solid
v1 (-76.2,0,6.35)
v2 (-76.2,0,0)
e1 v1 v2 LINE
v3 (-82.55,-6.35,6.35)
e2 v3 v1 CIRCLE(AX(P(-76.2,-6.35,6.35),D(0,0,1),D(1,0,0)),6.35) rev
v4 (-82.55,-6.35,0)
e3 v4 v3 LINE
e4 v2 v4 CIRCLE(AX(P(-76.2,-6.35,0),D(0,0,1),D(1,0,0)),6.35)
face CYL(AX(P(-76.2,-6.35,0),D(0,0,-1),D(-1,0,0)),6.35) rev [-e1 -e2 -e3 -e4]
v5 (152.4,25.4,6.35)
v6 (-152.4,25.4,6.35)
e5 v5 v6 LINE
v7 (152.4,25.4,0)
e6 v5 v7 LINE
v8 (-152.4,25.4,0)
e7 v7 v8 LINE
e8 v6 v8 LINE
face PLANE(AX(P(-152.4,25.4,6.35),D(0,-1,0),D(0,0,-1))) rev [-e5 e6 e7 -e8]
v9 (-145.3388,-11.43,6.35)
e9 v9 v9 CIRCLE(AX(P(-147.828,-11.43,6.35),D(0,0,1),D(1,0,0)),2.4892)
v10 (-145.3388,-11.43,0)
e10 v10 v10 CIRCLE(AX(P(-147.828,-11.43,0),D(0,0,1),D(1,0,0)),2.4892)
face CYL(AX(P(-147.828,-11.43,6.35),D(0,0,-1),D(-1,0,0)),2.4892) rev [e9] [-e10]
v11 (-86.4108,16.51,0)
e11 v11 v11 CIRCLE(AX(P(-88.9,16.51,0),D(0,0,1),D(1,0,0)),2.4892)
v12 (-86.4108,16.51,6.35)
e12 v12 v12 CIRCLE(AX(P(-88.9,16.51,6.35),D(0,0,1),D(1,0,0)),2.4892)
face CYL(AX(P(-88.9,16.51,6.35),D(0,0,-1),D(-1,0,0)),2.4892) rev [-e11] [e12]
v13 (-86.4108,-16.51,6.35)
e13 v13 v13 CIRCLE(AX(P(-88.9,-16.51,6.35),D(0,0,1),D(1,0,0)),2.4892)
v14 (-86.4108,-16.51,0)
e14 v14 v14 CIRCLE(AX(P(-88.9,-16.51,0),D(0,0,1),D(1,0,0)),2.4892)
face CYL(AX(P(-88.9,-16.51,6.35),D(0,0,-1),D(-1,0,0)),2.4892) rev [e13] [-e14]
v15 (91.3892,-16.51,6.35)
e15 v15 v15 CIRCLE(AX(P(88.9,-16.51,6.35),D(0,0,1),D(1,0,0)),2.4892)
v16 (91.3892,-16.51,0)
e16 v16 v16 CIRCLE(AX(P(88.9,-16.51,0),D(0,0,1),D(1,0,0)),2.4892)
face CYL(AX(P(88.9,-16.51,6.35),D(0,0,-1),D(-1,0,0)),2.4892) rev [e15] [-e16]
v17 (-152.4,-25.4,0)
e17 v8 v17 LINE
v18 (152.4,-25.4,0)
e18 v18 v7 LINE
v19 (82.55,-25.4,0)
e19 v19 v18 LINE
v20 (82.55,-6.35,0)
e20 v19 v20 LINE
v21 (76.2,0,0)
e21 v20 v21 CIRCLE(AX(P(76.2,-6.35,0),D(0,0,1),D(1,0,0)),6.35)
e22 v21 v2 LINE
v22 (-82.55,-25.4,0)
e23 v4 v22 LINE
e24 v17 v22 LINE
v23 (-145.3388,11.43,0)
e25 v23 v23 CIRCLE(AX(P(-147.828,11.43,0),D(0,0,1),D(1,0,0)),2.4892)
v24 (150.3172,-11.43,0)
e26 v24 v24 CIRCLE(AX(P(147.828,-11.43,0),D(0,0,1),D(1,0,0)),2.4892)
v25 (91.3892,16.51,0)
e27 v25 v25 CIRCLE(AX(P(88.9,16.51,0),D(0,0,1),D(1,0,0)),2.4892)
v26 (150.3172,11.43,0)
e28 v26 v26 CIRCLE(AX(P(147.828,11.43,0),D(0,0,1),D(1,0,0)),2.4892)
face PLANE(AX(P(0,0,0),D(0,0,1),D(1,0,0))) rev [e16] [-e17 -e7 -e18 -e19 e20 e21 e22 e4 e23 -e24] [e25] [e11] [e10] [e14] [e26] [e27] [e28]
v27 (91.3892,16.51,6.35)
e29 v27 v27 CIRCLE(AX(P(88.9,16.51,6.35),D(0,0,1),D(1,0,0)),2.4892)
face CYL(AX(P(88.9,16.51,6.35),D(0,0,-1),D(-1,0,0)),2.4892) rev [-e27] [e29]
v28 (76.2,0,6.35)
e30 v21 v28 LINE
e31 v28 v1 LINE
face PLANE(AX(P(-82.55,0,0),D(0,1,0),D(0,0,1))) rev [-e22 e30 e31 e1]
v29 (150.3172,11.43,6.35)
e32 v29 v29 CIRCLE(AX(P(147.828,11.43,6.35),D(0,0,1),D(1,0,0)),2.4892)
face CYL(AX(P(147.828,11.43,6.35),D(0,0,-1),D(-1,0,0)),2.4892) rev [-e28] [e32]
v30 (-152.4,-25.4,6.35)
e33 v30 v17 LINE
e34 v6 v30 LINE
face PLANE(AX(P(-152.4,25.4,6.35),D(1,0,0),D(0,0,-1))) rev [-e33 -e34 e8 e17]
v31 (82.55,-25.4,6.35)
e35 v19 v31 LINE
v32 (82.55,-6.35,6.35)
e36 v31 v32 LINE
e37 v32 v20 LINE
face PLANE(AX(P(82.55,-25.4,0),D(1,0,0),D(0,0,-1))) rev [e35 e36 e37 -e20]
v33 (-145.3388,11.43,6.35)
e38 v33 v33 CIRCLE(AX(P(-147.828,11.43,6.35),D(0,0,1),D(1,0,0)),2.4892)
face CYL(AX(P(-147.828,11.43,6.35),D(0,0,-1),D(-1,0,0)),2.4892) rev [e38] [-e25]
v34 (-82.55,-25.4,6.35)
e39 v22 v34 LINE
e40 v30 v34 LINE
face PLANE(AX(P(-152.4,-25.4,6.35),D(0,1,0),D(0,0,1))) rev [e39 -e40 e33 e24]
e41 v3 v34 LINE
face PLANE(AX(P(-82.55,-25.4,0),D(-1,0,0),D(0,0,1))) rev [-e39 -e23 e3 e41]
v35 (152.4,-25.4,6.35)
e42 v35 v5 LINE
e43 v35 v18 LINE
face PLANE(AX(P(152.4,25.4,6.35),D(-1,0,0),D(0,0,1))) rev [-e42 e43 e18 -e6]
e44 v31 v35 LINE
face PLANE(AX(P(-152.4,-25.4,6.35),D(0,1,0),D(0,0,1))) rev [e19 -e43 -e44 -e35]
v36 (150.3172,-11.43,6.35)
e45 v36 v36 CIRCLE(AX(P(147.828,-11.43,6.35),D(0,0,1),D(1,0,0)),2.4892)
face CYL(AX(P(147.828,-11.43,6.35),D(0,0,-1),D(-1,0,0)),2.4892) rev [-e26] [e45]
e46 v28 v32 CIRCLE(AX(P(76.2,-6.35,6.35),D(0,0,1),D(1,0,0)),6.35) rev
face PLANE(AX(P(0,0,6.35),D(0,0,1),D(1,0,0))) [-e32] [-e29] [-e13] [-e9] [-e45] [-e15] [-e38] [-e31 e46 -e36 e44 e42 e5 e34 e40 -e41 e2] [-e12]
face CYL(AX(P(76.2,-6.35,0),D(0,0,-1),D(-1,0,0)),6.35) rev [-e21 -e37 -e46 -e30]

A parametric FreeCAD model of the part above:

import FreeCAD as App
import Part
import Sketcher
Q = App.Units.Quantity


def edges_at(feature, points):
    """Names of the edges that pass closest to the given points."""
    edges = feature.Shape.Edges
    near = lambda p: min(range(len(edges)), key=lambda i: edges[i].distToShape(Part.Vertex(*p))[0])
    return sorted({f"Edge{near(p) + 1}" for p in points})


def add_polygon(sketch, points):
    """Adds a closed chain of lines whose ends are joined by coincident constraints."""
    first, n = sketch.GeometryCount, len(points)
    for a, b in zip(points, points[1:] + points[:1]):
        sketch.addGeometry(Part.LineSegment(App.Vector(*a, 0), App.Vector(*b, 0)), False)
    for i in range(n):
        sketch.addConstraint(Sketcher.Constraint("Coincident", first + i, 2, first + (i + 1) % n, 1))

doc = App.newDocument("Part")
body = doc.addObject("PartDesign::Body", "Body")

# Sketch on XY plane
sketch1 = doc.addObject("Sketcher::SketchObject", "Sketch")
body.addObject(sketch1)
sketch1.AttachmentSupport = (doc.XY_Plane, [""])
sketch1.MapMode = "FlatFace"
add_polygon(sketch1, [(-152.4, 25.4), (-152.4, -25.4), (152.4, -25.4), (152.4, 25.4)])  # lines 0-3
sketch1.addGeometry(Part.Circle(App.Vector(-88.9, -16.5, 0), App.Vector(0, 0, 1), 2.5), False)  # 4
sketch1.addGeometry(Part.Circle(App.Vector(-147.8, -11.4, 0), App.Vector(0, 0, 1), 2.5), False)  # 5
sketch1.addGeometry(Part.Circle(App.Vector(88.9, -16.5, 0), App.Vector(0, 0, 1), 2.5), False)  # 6
sketch1.addGeometry(Part.Circle(App.Vector(147.8, -11.4, 0), App.Vector(0, 0, 1), 2.5), False)  # 7
sketch1.addGeometry(Part.Circle(App.Vector(-147.8, 11.4, 0), App.Vector(0, 0, 1), 2.5), False)  # 8
sketch1.addGeometry(Part.Circle(App.Vector(-88.9, 16.5, 0), App.Vector(0, 0, 1), 2.5), False)  # 9
sketch1.addGeometry(Part.Circle(App.Vector(147.8, 11.4, 0), App.Vector(0, 0, 1), 2.5), False)  # 10
sketch1.addGeometry(Part.Circle(App.Vector(88.9, 16.5, 0), App.Vector(0, 0, 1), 2.5), False)  # 11
sketch1.addConstraint(Sketcher.Constraint("Vertical", 0))
sketch1.addConstraint(Sketcher.Constraint("Horizontal", 1))
sketch1.addConstraint(Sketcher.Constraint("Vertical", 2))
sketch1.addConstraint(Sketcher.Constraint("Horizontal", 3))
sketch1.addConstraint(Sketcher.Constraint("Equal", 4, 5))
sketch1.addConstraint(Sketcher.Constraint("Equal", 5, 6))
sketch1.addConstraint(Sketcher.Constraint("Equal", 6, 7))
sketch1.addConstraint(Sketcher.Constraint("Equal", 7, 8))
sketch1.addConstraint(Sketcher.Constraint("Equal", 8, 9))
sketch1.addConstraint(Sketcher.Constraint("Equal", 9, 10))
sketch1.addConstraint(Sketcher.Constraint("Equal", 10, 11))
sketch1.addConstraint(Sketcher.Constraint("Symmetric", 7, 3, 8, 3, -1, 1))
sketch1.addConstraint(Sketcher.Constraint("Symmetric", 6, 3, 9, 3, -1, 1))
sketch1.addConstraint(Sketcher.Constraint("Symmetric", 5, 3, 10, 3, -1, 1))
sketch1.addConstraint(Sketcher.Constraint("Symmetric", 4, 3, 11, 3, -1, 1))
sketch1.addConstraint(Sketcher.Constraint("Symmetric", 0, 2, 2, 2, -1, 1))
sketch1.addConstraint(Sketcher.Constraint("Symmetric", 4, 3, 6, 3, -2))
sketch1.addConstraint(Sketcher.Constraint("Symmetric", 5, 3, 7, 3, -2))
sketch1.addConstraint(Sketcher.Constraint("DistanceX", 1, 1, 1, 2, Q("12 in")))
sketch1.addConstraint(Sketcher.Constraint("DistanceY", 0, 2, 0, 1, Q("2 in")))
sketch1.addConstraint(Sketcher.Constraint("Diameter", 4, Q("0.196 in")))
sketch1.addConstraint(Sketcher.Constraint("DistanceX", 4, 3, 6, 3, Q("7 in")))
sketch1.addConstraint(Sketcher.Constraint("DistanceY", 4, 3, 5, 3, Q("0.2 in")))
sketch1.addConstraint(Sketcher.Constraint("DistanceY", 5, 3, 8, 3, Q("0.9 in")))
sketch1.addConstraint(Sketcher.Constraint("DistanceX", 5, 3, -1, 1, Q("5.82 in")))
pad1 = doc.addObject("PartDesign::Pad", "Pad")
body.addObject(pad1)
pad1.Profile = sketch1
pad1.Length = Q("0.25 in")

# Sketch on XY plane
sketch2 = doc.addObject("Sketcher::SketchObject", "Sketch001")
body.addObject(sketch2)
sketch2.AttachmentSupport = (doc.XY_Plane, [""])
sketch2.MapMode = "FlatFace"
sketch2.AttachmentOffset = App.Placement(App.Vector(0, 0, 0.25 * 25.4), App.Rotation())
add_polygon(sketch2, [(-83, 0), (-83, -25), (83, -25), (83, 0)])  # lines 0-3
sketch2.addConstraint(Sketcher.Constraint("Vertical", 0))
sketch2.addConstraint(Sketcher.Constraint("Horizontal", 1))
sketch2.addConstraint(Sketcher.Constraint("Vertical", 2))
sketch2.addConstraint(Sketcher.Constraint("Horizontal", 3))
sketch2.addConstraint(Sketcher.Constraint("Symmetric", 2, 2, 3, 2, -1, 1))
sketch2.addConstraint(Sketcher.Constraint("DistanceY", 0, 2, 0, 1, Q("1 in")))
sketch2.addConstraint(Sketcher.Constraint("DistanceX", 1, 1, 1, 2, Q("6.5 in")))
pocket1 = doc.addObject("PartDesign::Pocket", "Pocket")
body.addObject(pocket1)
pocket1.Profile = sketch2
pocket1.Type = "ThroughAll"
doc.recompute()

fillet = doc.addObject("PartDesign::Fillet", "Fillet")
body.addObject(fillet)
fillet.Base = (pocket1, edges_at(pocket1, [(-82.55, 0, 3.175), (82.55, 0, 3.175)]))
fillet.Radius = Q("0.25 in")

doc.recompute()
